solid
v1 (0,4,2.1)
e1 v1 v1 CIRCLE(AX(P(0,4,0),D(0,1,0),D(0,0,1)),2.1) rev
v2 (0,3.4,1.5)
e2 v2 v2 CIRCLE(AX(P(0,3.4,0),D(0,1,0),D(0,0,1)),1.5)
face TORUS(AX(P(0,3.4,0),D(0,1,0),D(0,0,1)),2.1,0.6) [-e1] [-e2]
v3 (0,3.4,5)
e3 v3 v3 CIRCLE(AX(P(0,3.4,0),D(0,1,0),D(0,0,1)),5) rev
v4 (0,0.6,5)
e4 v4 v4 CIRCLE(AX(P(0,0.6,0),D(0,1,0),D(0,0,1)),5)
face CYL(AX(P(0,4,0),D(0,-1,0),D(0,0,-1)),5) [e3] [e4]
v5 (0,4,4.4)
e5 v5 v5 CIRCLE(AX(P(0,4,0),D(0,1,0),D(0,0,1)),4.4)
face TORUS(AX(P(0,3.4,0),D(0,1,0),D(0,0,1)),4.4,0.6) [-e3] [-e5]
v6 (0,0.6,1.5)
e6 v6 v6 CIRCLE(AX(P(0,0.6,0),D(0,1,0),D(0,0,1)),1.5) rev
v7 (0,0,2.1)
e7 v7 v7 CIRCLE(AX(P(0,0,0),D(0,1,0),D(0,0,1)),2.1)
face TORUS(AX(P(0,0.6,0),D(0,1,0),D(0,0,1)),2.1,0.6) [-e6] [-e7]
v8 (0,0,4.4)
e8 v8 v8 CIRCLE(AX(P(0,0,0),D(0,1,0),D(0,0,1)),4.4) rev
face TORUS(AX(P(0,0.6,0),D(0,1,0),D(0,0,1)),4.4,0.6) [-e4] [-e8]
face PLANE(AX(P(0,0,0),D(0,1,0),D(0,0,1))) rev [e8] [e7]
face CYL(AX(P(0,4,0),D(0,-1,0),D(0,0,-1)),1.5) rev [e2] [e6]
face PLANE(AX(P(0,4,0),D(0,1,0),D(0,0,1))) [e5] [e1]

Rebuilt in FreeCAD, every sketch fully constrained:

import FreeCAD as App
import Part
import Sketcher


def edges_at(feature, points):
    """Names of the edges that pass closest to the given points."""
    edges = feature.Shape.Edges
    near = lambda p: min(range(len(edges)), key=lambda i: edges[i].distToShape(Part.Vertex(*p))[0])
    return sorted({f"Edge{near(p) + 1}" for p in points})

doc = App.newDocument("Part")
body = doc.addObject("PartDesign::Body", "Body")

# Sketch on XZ plane
sketch1 = body.newObject("Sketcher::SketchObject", "Sketch")
sketch1.AttachmentSupport = (doc.getObject("XZ_Plane"), [""])
sketch1.MapMode = "FlatFace"
sketch1.addGeometry(Part.Circle(App.Vector(0, 0, 0), App.Vector(0, 0, 1), 5), False)
sketch1.addGeometry(Part.Circle(App.Vector(0, 0, 0), App.Vector(0, 0, 1), 1.5), False)
sketch1.addConstraint(Sketcher.Constraint("Coincident", 0, 3, -1, 1))
sketch1.addConstraint(Sketcher.Constraint("Coincident", 1, 3, -1, 1))
sketch1.addConstraint(Sketcher.Constraint("Diameter", 0, 10.0))
sketch1.addConstraint(Sketcher.Constraint("Diameter", 1, 3.0))
pad1 = body.newObject("PartDesign::Pad", "Pad")
pad1.Profile = sketch1
pad1.Length = 4
pad1.Reversed = True
doc.recompute()

fillet = body.newObject("PartDesign::Fillet", "Fillet")
fillet.Base = (pad1, edges_at(pad1, [
    (-5, 0, 0),
    (-5, 4, 0),
    (-1.5, 0, 0),
    (-1.5, 4, 0),
]))
fillet.Radius = 0.6

doc.recompute()
